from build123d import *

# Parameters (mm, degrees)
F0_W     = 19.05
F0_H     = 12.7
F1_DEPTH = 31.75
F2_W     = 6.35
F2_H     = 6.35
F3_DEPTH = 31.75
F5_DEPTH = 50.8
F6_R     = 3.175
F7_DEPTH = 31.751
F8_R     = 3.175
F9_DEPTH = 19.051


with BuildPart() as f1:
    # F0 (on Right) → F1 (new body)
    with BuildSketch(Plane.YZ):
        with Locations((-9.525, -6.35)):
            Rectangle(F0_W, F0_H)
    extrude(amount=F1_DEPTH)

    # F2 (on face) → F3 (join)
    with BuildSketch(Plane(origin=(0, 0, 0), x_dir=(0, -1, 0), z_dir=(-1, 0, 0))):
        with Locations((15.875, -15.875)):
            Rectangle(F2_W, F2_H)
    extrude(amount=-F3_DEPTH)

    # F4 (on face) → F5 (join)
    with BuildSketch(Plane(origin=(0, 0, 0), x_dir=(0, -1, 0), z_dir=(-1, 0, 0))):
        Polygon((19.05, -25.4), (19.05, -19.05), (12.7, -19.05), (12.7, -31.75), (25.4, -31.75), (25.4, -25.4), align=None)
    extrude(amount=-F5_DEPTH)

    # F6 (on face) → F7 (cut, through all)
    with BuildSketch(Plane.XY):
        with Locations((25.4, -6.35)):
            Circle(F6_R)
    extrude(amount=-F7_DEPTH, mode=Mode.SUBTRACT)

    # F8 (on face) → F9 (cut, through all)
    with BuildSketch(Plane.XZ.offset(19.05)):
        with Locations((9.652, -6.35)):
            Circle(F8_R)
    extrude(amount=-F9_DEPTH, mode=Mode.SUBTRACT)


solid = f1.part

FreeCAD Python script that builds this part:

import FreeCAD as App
import Part
import Sketcher
Q = App.Units.Quantity


def add_polygon(sketch, points):
    """Adds a closed chain of lines whose ends are joined by coincident constraints."""
    first, n = sketch.GeometryCount, len(points)
    for a, b in zip(points, points[1:] + points[:1]):
        sketch.addGeometry(Part.LineSegment(App.Vector(*a, 0), App.Vector(*b, 0)), False)
    for i in range(n):
        sketch.addConstraint(Sketcher.Constraint("Coincident", first + i, 2, first + (i + 1) % n, 1))

doc = App.newDocument("Part")
body = doc.addObject("PartDesign::Body", "Body")

# Sketch on YZ plane
sketch1 = body.newObject("Sketcher::SketchObject", "Sketch")
sketch1.AttachmentSupport = (doc.getObject("YZ_Plane"), [""])
sketch1.MapMode = "FlatFace"
add_polygon(sketch1, [(-19, 0), (-19, -13), (0, -13), (0, 0)])  # lines 0-3
sketch1.addConstraint(Sketcher.Constraint("Vertical", 0))
sketch1.addConstraint(Sketcher.Constraint("Horizontal", 1))
sketch1.addConstraint(Sketcher.Constraint("Vertical", 2))
sketch1.addConstraint(Sketcher.Constraint("Horizontal", 3))
sketch1.addConstraint(Sketcher.Constraint("Coincident", 2, 2, -1, 1))
sketch1.addConstraint(Sketcher.Constraint("DistanceY", 0, 2, 0, 1, Q("0.5 in")))
sketch1.addConstraint(Sketcher.Constraint("DistanceX", 1, 1, 1, 2, Q("0.75 in")))
pad1 = body.newObject("PartDesign::Pad", "Pad")
pad1.Profile = sketch1
pad1.Length = Q("1.25 in")

# Sketch on YZ plane
sketch2 = body.newObject("Sketcher::SketchObject", "Sketch001")
sketch2.AttachmentSupport = (doc.getObject("YZ_Plane"), [""])
sketch2.MapMode = "FlatFace"
add_polygon(sketch2, [(-13, -13), (-13, -19), (-19, -19), (-19, -13)])  # lines 0-3
sketch2.addConstraint(Sketcher.Constraint("Vertical", 0))
sketch2.addConstraint(Sketcher.Constraint("Horizontal", 1))
sketch2.addConstraint(Sketcher.Constraint("Vertical", 2))
sketch2.addConstraint(Sketcher.Constraint("Horizontal", 3))
sketch2.addConstraint(Sketcher.Constraint("Equal", 3, 0))
sketch2.addConstraint(Sketcher.Constraint("DistanceX", 1, 2, 1, 1, Q("0.25 in")))
sketch2.addConstraint(Sketcher.Constraint("DistanceX", 0, 2, -1, 1, Q("0.5 in")))
sketch2.addConstraint(Sketcher.Constraint("DistanceY", 2, 2, -1, 1, Q("0.5 in")))
pad2 = body.newObject("PartDesign::Pad", "Pad001")
pad2.Profile = sketch2
pad2.Length = Q("1.25 in")

# Sketch on YZ plane
sketch3 = body.newObject("Sketcher::SketchObject", "Sketch002")
sketch3.AttachmentSupport = (doc.getObject("YZ_Plane"), [""])
sketch3.MapMode = "FlatFace"
add_polygon(sketch3, [(-19, -25), (-19, -19), (-13, -19), (-13, -32), (-25, -32), (-25, -25)])  # lines 0-5
sketch3.addConstraint(Sketcher.Constraint("Vertical", 0))
sketch3.addConstraint(Sketcher.Constraint("Horizontal", 1))
sketch3.addConstraint(Sketcher.Constraint("Vertical", 2))
sketch3.addConstraint(Sketcher.Constraint("Horizontal", 3))
sketch3.addConstraint(Sketcher.Constraint("Vertical", 4))
sketch3.addConstraint(Sketcher.Constraint("Horizontal", 5))
sketch3.addConstraint(Sketcher.Constraint("Equal", 1, 5))
sketch3.addConstraint(Sketcher.Constraint("Equal", 5, 0))
sketch3.addConstraint(Sketcher.Constraint("Equal", 3, 2))
sketch3.addConstraint(Sketcher.Constraint("DistanceX", 3, 2, 3, 1, Q("0.5 in")))
sketch3.addConstraint(Sketcher.Constraint("DistanceX", 3, 2, -1, 1, Q("1 in")))
sketch3.addConstraint(Sketcher.Constraint("DistanceY", 4, 2, -1, 1, Q("1 in")))
pad3 = body.newObject("PartDesign::Pad", "Pad002")
pad3.Profile = sketch3
pad3.Length = Q("2 in")

# Sketch on XY plane
sketch4 = body.newObject("Sketcher::SketchObject", "Sketch003")
sketch4.AttachmentSupport = (doc.getObject("XY_Plane"), [""])
sketch4.MapMode = "FlatFace"
sketch4.addGeometry(Part.Circle(App.Vector(25.4, -6.3, 0), App.Vector(0, 0, 1), 3.2), False)
sketch4.addConstraint(Sketcher.Constraint("Diameter", 0, Q("0.25 in")))
sketch4.addConstraint(Sketcher.Constraint("DistanceX", -1, 1, 0, 3, Q("1 in")))
sketch4.addConstraint(Sketcher.Constraint("DistanceY", 0, 3, -1, 1, Q("0.25 in")))
pocket1 = body.newObject("PartDesign::Pocket", "Pocket")
pocket1.Profile = sketch4
pocket1.Type = "ThroughAll"

# Sketch on XZ plane
sketch5 = body.newObject("Sketcher::SketchObject", "Sketch004")
sketch5.AttachmentSupport = (doc.getObject("XZ_Plane"), [""])
sketch5.MapMode = "FlatFace"
sketch5.AttachmentOffset = App.Placement(App.Vector(0, 0, 0.75 * 25.4), App.Rotation())
sketch5.addGeometry(Part.Circle(App.Vector(9.7, -6.3, 0), App.Vector(0, 0, 1), 3.2), False)
sketch5.addConstraint(Sketcher.Constraint("Diameter", 0, Q("0.25 in")))
sketch5.addConstraint(Sketcher.Constraint("DistanceX", -1, 1, 0, 3, Q("0.38 in")))
sketch5.addConstraint(Sketcher.Constraint("DistanceY", 0, 3, -1, 1, Q("0.25 in")))
pocket2 = body.newObject("PartDesign::Pocket", "Pocket001")
pocket2.Profile = sketch5
pocket2.Type = "ThroughAll"

doc.recompute()
